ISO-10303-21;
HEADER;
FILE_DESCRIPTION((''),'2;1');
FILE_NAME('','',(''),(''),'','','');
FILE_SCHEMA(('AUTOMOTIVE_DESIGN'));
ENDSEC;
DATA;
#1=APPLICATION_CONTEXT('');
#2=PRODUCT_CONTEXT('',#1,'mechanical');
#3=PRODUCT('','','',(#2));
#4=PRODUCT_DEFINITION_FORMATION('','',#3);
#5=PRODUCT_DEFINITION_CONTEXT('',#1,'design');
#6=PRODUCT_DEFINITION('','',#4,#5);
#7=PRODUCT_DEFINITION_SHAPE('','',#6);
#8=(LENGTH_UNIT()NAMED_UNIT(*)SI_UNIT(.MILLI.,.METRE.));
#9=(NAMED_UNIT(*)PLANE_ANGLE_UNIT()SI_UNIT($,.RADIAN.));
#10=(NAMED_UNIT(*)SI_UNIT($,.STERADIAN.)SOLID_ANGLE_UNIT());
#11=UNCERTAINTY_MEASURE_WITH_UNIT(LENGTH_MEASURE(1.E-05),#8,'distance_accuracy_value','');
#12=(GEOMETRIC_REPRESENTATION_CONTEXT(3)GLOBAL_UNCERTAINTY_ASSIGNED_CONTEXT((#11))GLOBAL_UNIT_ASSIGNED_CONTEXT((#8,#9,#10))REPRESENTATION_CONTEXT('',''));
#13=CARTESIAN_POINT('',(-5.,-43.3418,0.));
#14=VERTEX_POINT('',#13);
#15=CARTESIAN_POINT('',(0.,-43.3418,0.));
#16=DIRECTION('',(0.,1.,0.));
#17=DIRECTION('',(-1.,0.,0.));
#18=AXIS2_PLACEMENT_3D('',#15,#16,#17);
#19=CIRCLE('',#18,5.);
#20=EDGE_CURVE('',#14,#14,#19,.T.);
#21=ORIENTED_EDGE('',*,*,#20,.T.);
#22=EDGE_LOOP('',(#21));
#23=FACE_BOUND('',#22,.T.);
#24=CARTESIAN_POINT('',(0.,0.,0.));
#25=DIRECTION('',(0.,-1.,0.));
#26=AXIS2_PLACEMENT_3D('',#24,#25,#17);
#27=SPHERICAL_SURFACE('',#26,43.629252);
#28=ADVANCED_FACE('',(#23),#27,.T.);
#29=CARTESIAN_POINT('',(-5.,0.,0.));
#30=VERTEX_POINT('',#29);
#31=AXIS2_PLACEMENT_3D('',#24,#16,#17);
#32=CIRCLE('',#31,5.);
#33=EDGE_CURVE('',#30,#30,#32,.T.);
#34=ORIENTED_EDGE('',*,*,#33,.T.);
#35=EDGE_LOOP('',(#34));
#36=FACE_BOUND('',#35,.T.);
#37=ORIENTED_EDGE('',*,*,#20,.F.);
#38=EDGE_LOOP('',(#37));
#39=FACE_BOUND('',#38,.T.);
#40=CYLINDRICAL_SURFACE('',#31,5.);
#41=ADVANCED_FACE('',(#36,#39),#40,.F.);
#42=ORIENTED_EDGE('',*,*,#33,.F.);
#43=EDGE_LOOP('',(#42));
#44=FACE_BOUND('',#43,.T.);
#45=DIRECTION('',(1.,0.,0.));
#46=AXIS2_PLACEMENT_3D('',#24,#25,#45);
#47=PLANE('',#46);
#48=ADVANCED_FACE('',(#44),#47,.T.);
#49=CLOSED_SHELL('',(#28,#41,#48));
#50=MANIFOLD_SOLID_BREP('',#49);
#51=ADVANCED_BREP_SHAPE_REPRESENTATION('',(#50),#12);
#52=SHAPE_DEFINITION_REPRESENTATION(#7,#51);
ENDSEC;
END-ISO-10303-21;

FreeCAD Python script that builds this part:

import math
import FreeCAD as App
import Part
import Sketcher

V = App.Vector


def add_polygon(sketch, points):
    """Adds a closed chain of lines whose ends are joined by coincident constraints."""
    first, n = sketch.GeometryCount, len(points)
    for a, b in zip(points, points[1:] + points[:1]):
        sketch.addGeometry(Part.LineSegment(App.Vector(*a, 0), App.Vector(*b, 0)), False)
    for i in range(n):
        sketch.addConstraint(Sketcher.Constraint("Coincident", first + i, 2, first + (i + 1) % n, 1))

doc = App.newDocument("Part")
body = doc.addObject("PartDesign::Body", "Body")

# Sketch on XY plane
sketch1 = body.newObject("Sketcher::SketchObject", "Sketch")
sketch1.AttachmentSupport = (doc.getObject("XY_Plane"), [""])
sketch1.MapMode = "FlatFace"
sketch1.addGeometry(Part.LineSegment(V(0, 44, 0), V(0, -44, 0)), False)
sketch1.addGeometry(Part.ArcOfCircle(Part.Circle(V(0, 0, 0), V(0, 0, 1), 44), math.radians(-90), math.radians(90)), False)
sketch1.addConstraint(Sketcher.Constraint("Coincident", 0, 1, 1, 2))
sketch1.addConstraint(Sketcher.Constraint("Coincident", 1, 1, 0, 2))
sketch1.addConstraint(Sketcher.Constraint("Vertical", 0))
sketch1.addConstraint(Sketcher.Constraint("Coincident", 1, 3, -1, 1))
sketch1.addConstraint(Sketcher.Constraint("PointOnObject", 0, 1, -2))
sketch1.addConstraint(Sketcher.Constraint("Radius", 1, 43.629252))
revolution = body.newObject("PartDesign::Revolution", "Revolution")
revolution.Profile = sketch1
revolution.ReferenceAxis = (sketch1, ["V_Axis"])
revolution.Angle = 360

# Sketch on XY plane
sketch2 = body.newObject("Sketcher::SketchObject", "Sketch001")
sketch2.AttachmentSupport = (doc.getObject("XY_Plane"), [""])
sketch2.MapMode = "FlatFace"
add_polygon(sketch2, [(0, 0), (0, -60), (5, -60), (5, 0)])  # lines 0-3
sketch2.addConstraint(Sketcher.Constraint("Vertical", 0))
sketch2.addConstraint(Sketcher.Constraint("Horizontal", 1))
sketch2.addConstraint(Sketcher.Constraint("Vertical", 2))
sketch2.addConstraint(Sketcher.Constraint("Horizontal", 3))
sketch2.addConstraint(Sketcher.Constraint("Coincident", 3, 2, -1, 1))
sketch2.addConstraint(Sketcher.Constraint("DistanceX", 1, 1, 1, 2, 5.0))
sketch2.addConstraint(Sketcher.Constraint("DistanceY", 0, 2, 0, 1, 60.0))
groove = body.newObject("PartDesign::Groove", "Groove")
groove.Profile = sketch2
groove.ReferenceAxis = (sketch2, ["V_Axis"])
groove.Angle = 360

doc.recompute()
